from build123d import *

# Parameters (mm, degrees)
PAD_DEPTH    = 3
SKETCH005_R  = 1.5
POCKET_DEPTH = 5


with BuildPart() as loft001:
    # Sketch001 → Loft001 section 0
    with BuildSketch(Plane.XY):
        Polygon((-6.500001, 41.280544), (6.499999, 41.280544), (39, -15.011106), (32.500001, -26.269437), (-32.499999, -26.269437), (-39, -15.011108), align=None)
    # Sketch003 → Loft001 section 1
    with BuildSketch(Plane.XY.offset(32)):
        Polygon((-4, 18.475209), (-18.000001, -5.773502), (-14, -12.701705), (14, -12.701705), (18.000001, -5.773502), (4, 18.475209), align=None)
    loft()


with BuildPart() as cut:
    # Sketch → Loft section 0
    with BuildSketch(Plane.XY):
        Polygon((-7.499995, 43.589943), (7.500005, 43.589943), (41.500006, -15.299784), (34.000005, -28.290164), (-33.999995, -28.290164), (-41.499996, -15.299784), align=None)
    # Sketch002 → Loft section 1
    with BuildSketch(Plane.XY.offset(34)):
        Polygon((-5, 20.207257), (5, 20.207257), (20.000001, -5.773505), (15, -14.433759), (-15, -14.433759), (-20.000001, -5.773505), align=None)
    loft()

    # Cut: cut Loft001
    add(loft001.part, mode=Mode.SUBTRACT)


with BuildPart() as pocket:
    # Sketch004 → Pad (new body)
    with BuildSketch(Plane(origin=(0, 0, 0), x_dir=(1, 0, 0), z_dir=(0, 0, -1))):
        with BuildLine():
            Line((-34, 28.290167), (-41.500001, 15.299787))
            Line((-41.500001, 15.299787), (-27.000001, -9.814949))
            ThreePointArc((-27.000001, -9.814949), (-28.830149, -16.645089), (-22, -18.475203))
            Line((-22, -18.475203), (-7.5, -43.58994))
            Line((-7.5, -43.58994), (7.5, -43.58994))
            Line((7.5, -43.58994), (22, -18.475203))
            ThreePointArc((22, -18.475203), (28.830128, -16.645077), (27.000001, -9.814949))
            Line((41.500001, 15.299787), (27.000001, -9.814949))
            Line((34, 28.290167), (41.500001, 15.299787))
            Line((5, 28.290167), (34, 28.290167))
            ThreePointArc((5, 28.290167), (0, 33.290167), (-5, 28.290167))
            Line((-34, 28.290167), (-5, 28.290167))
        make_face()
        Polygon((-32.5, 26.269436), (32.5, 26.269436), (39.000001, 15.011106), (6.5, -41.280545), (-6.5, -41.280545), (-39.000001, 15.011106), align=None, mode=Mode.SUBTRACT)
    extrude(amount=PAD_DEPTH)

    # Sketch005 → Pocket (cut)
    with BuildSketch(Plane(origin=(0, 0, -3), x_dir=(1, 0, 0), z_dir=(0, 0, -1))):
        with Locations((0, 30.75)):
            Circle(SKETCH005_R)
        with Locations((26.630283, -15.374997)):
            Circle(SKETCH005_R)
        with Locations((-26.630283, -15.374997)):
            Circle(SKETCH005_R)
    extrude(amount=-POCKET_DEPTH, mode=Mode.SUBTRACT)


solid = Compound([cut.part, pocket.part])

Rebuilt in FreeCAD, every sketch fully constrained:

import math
import FreeCAD as App
import Part
import Sketcher
Q = App.Units.Quantity


def add_polygon(sketch, points):
    """Adds a closed chain of lines whose ends are joined by coincident constraints."""
    first, n = sketch.GeometryCount, len(points)
    for a, b in zip(points, points[1:] + points[:1]):
        sketch.addGeometry(Part.LineSegment(App.Vector(*a, 0), App.Vector(*b, 0)), False)
    for i in range(n):
        sketch.addConstraint(Sketcher.Constraint("Coincident", first + i, 2, first + (i + 1) % n, 1))

doc = App.newDocument("Part")
body = doc.addObject("PartDesign::Body", "Body")

# Sketch on XY plane
sketch1 = body.newObject("Sketcher::SketchObject", "Sketch")
sketch1.AttachmentSupport = (doc.getObject("XY_Plane"), [""])
sketch1.MapMode = "FlatFace"
add_polygon(sketch1, [(6, 41), (-7, 41), (-39, -15), (-32, -26), (33, -26), (39, -15)])  # lines 0-5
sketch1.addConstraint([
    Sketcher.Constraint("Horizontal", 0),
    Sketcher.Constraint("Horizontal", 3),
    Sketcher.Constraint("Symmetric", 1, 2, 4, 2, -2),
    Sketcher.Constraint("Parallel", 1, 4),
    Sketcher.Constraint("Parallel", 2, 5),
    Sketcher.Constraint("Equal", 2, 4),
    Sketcher.Constraint("DistanceX", 0, 2, 0, 1, Q("13 mm")),
    Sketcher.Constraint("DistanceX", 3, 1, 3, 2, Q("65 mm")),
    Sketcher.Constraint("Angle", 1, Q("-119.999999 deg")),
    Sketcher.Constraint("Distance", 1, Q("65 mm")),
    Sketcher.Constraint("DistanceY", -1, 1, 0, 2, Q("41.280544 mm")),
])

# Sketch on XY plane
sketch2 = body.newObject("Sketcher::SketchObject", "Sketch001")
sketch2.AttachmentSupport = (doc.getObject("XY_Plane"), [""])
sketch2.MapMode = "FlatFace"
sketch2.AttachmentOffset = App.Placement(App.Vector(0, 0, 32), App.Rotation())
add_polygon(sketch2, [(-4, 18), (-18, -6), (-14, -13), (14, -13), (18, -6), (4, 18)])  # lines 0-5
sketch2.addConstraint([
    Sketcher.Constraint("Horizontal", 2),
    Sketcher.Constraint("Horizontal", 5),
    Sketcher.Constraint("Symmetric", 0, 2, 3, 2, -2),
    Sketcher.Constraint("Parallel", 0, 3),
    Sketcher.Constraint("Parallel", 1, 4),
    Sketcher.Constraint("Equal", 1, 3),
    Sketcher.Constraint("DistanceX", 2, 1, 2, 2, Q("28 mm")),
    Sketcher.Constraint("DistanceX", 5, 2, 5, 1, Q("8 mm")),
    Sketcher.Constraint("Angle", 0, Q("-120.000002 deg")),
    Sketcher.Constraint("Distance", 0, Q("28 mm")),
    Sketcher.Constraint("DistanceY", 0, 2, -1, 1, Q("5.773502 mm")),
])

additiveloft = body.newObject("PartDesign::AdditiveLoft", "AdditiveLoft")
additiveloft.Profile = sketch1
additiveloft.Sections = [sketch2]
body2 = doc.addObject("PartDesign::Body", "Body001")

# Sketch on XY plane
sketch3 = body2.newObject("Sketcher::SketchObject", "Sketch002")
sketch3.AttachmentSupport = (doc.getObject("XY_Plane001"), [""])
sketch3.MapMode = "FlatFace"
add_polygon(sketch3, [(8, 44), (-7, 44), (-41, -15), (-34, -28), (34, -28), (42, -15)])  # lines 0-5
sketch3.addConstraint([
    Sketcher.Constraint("Horizontal", 0),
    Sketcher.Constraint("Horizontal", 3),
    Sketcher.Constraint("Symmetric", 1, 2, 4, 2, -2),
    Sketcher.Constraint("Parallel", 1, 4),
    Sketcher.Constraint("Parallel", 2, 5),
    Sketcher.Constraint("Equal", 2, 4),
    Sketcher.Constraint("DistanceX", 0, 2, 0, 1, Q("15 mm")),
    Sketcher.Constraint("DistanceX", 3, 1, 3, 2, Q("68 mm")),
    Sketcher.Constraint("Angle", 1, Q("-120.000001 deg")),
    Sketcher.Constraint("Distance", 1, Q("68 mm")),
    Sketcher.Constraint("DistanceY", -1, 1, 0, 2, Q("43.589943 mm")),
])

# Sketch on XY plane
sketch4 = body2.newObject("Sketcher::SketchObject", "Sketch003")
sketch4.AttachmentSupport = (doc.getObject("XY_Plane001"), [""])
sketch4.MapMode = "FlatFace"
sketch4.AttachmentOffset = App.Placement(App.Vector(0, 0, 34), App.Rotation())
add_polygon(sketch4, [(5, 20), (-5, 20), (-20, -6), (-15, -14), (15, -14), (20, -6)])  # lines 0-5
sketch4.addConstraint([
    Sketcher.Constraint("Horizontal", 0),
    Sketcher.Constraint("Horizontal", 3),
    Sketcher.Constraint("Symmetric", 1, 2, 4, 2, -2),
    Sketcher.Constraint("Parallel", 1, 4),
    Sketcher.Constraint("Parallel", 2, 5),
    Sketcher.Constraint("Equal", 2, 4),
    Sketcher.Constraint("DistanceX", 0, 2, 0, 1, Q("10 mm")),
    Sketcher.Constraint("DistanceX", 3, 1, 3, 2, Q("30 mm")),
    Sketcher.Constraint("Angle", 1, Q("-120.000002 deg")),
    Sketcher.Constraint("Distance", 1, Q("30 mm")),
    Sketcher.Constraint("DistanceY", 2, 2, -1, 1, Q("14.433759 mm")),
])

additiveloft2 = body2.newObject("PartDesign::AdditiveLoft", "AdditiveLoft001")
additiveloft2.Profile = sketch3
additiveloft2.Sections = [sketch4]
doc.recompute()

boolean = body2.newObject("PartDesign::Boolean", "Boolean")
boolean.Type = "Cut"
boolean.addObjects([body])
body3 = doc.addObject("PartDesign::Body", "Body002")

# Sketch on XY plane
sketch5 = body3.newObject("Sketcher::SketchObject", "Sketch004")
sketch5.AttachmentSupport = (doc.getObject("XY_Plane002"), [""])
sketch5.MapMode = "FlatFace"
sketch5.addGeometry(Part.LineSegment(App.Vector(-34, -28, 0), App.Vector(-42, -15, 0)), False)  # 0
sketch5.addGeometry(Part.LineSegment(App.Vector(-42, -15, 0), App.Vector(-27, 10, 0)), False)  # 1
sketch5.addGeometry(Part.ArcOfCircle(Part.Circle(App.Vector(-25, 14, 0), App.Vector(0, 0, 1), 5), math.radians(60), math.radians(240)), False)  # 2
sketch5.addGeometry(Part.LineSegment(App.Vector(-22, 18, 0), App.Vector(-8, 44, 0)), False)  # 3
sketch5.addGeometry(Part.LineSegment(App.Vector(-8, 44, 0), App.Vector(8, 44, 0)), False)  # 4
sketch5.addGeometry(Part.LineSegment(App.Vector(8, 44, 0), App.Vector(22, 18, 0)), False)  # 5
sketch5.addGeometry(Part.ArcOfCircle(Part.Circle(App.Vector(25, 14, 0), App.Vector(0, 0, 1), 5), math.radians(-60), math.radians(120)), False)  # 6
sketch5.addGeometry(Part.LineSegment(App.Vector(27, 10, 0), App.Vector(42, -15, 0)), False)  # 7
sketch5.addGeometry(Part.LineSegment(App.Vector(42, -15, 0), App.Vector(34, -28, 0)), False)  # 8
sketch5.addGeometry(Part.LineSegment(App.Vector(34, -28, 0), App.Vector(5, -28, 0)), False)  # 9
sketch5.addGeometry(Part.ArcOfCircle(Part.Circle(App.Vector(0, -28, 0), App.Vector(0, 0, 1), 5), math.radians(180), math.radians(360)), False)  # 10
sketch5.addGeometry(Part.LineSegment(App.Vector(-5, -28, 0), App.Vector(-34, -28, 0)), False)  # 11
add_polygon(sketch5, [(-39, -15), (-32, -26), (32, -26), (39, -15), (6, 41), (-6, 41)])  # lines 12-17
sketch5.addConstraint([
    Sketcher.Constraint("Coincident", 0, 2, 1, 1),
    Sketcher.Constraint("Coincident", 1, 2, 2, 2),
    Sketcher.Constraint("Coincident", 2, 1, 3, 1),
    Sketcher.Constraint("Coincident", 3, 2, 4, 1),
    Sketcher.Constraint("Coincident", 4, 2, 5, 1),
    Sketcher.Constraint("Coincident", 5, 2, 6, 2),
    Sketcher.Constraint("Coincident", 6, 1, 7, 1),
    Sketcher.Constraint("Coincident", 7, 2, 8, 1),
    Sketcher.Constraint("Coincident", 8, 2, 9, 1),
    Sketcher.Constraint("Coincident", 9, 2, 10, 2),
    Sketcher.Constraint("Coincident", 10, 1, 11, 1),
    Sketcher.Constraint("Coincident", 11, 2, 0, 1),
    Sketcher.Constraint("Horizontal", 4),
    Sketcher.Constraint("Horizontal", 9),
    Sketcher.Constraint("Horizontal", 11),
    Sketcher.Constraint("Horizontal", 13),
    Sketcher.Constraint("Horizontal", 16),
    Sketcher.Constraint("Equal", 2, 6),
    Sketcher.Constraint("Equal", 6, 10),
    Sketcher.Constraint("Symmetric", 2, 1, 5, 2, -2),
    Sketcher.Constraint("Symmetric", 0, 2, 7, 2, -2),
    Sketcher.Constraint("Symmetric", 9, 2, 10, 1, -2),
    Sketcher.Constraint("Symmetric", 14, 2, 17, 2, -2),
    Sketcher.Constraint("Parallel", 1, 3),
    Sketcher.Constraint("Parallel", 0, 5),
    Sketcher.Constraint("Parallel", 5, 7),
    Sketcher.Constraint("Parallel", 3, 8),
    Sketcher.Constraint("Parallel", 7, 12),
    Sketcher.Constraint("Parallel", 8, 14),
    Sketcher.Constraint("Parallel", 12, 15),
    Sketcher.Constraint("Parallel", 14, 17),
    Sketcher.Constraint("Horizontal", 1, 2, 6, 1),
    Sketcher.Constraint("Horizontal", 10, 3, 8, 2),
    Sketcher.Constraint("Equal", 1, 3),
    Sketcher.Constraint("Radius", 2, Q("5 mm")),
    Sketcher.Constraint("DistanceX", 4, 1, 4, 2, Q("15 mm")),
    Sketcher.Constraint("DistanceX", 9, 2, 9, 1, Q("29 mm")),
    Sketcher.Constraint("DistanceX", 13, 1, 13, 2, Q("65 mm")),
    Sketcher.Constraint("DistanceX", 16, 2, 16, 1, Q("13 mm")),
    Sketcher.Constraint("Angle", 0, Q("120.000005 deg")),
    Sketcher.Constraint("Distance", 0, Q("15 mm")),
    Sketcher.Constraint("Distance", 1, Q("28.999999 mm")),
    Sketcher.Constraint("Distance", 12, Q("13 mm")),
    Sketcher.Constraint("DistanceX", 3, 2, 6, 3, Q("32.000001 mm")),
    Sketcher.Constraint("DistanceY", -1, 1, 2, 3, Q("14.145088 mm")),
    Sketcher.Constraint("DistanceY", -1, 1, 1, 2, Q("9.814949 mm")),
    Sketcher.Constraint("DistanceY", 11, 2, 12, 2, Q("2.020731 mm")),
])
pad1 = body3.newObject("PartDesign::Pad", "Pad")
pad1.Profile = sketch5
pad1.Length = 3
pad1.Reversed = True

# Sketch on XY plane
sketch6 = body3.newObject("Sketcher::SketchObject", "Sketch005")
sketch6.AttachmentSupport = (doc.getObject("XY_Plane002"), [""])
sketch6.MapMode = "FlatFace"
sketch6.AttachmentOffset = App.Placement(App.Vector(0, 0, -3), App.Rotation())
sketch6.addGeometry([
    Part.Circle(App.Vector(0, -30.8, 0), App.Vector(0, 0, 1), 1.5),
    Part.Circle(App.Vector(26.6, 15.4, 0), App.Vector(0, 0, 1), 1.5),
    Part.Circle(App.Vector(-26.6, 15.4, 0), App.Vector(0, 0, 1), 1.5),
], False)
sketch6.addConstraint([
    Sketcher.Constraint("Equal", 0, 1),
    Sketcher.Constraint("Equal", 1, 2),
    Sketcher.Constraint("Symmetric", 1, 3, 2, 3, -2),
    Sketcher.Constraint("PointOnObject", 0, 3, -2),
    Sketcher.Constraint("Diameter", 0, Q("3 mm")),
    Sketcher.Constraint("DistanceY", 0, 3, -1, 1, Q("30.75 mm")),
    Sketcher.Constraint("DistanceX", -1, 1, 1, 3, Q("26.630283 mm")),
    Sketcher.Constraint("DistanceY", -1, 1, 1, 3, Q("15.374997 mm")),
])
pocket1 = body3.newObject("PartDesign::Pocket", "Pocket")
pocket1.Profile = sketch6
pocket1.Length = 5
pocket1.Reversed = True

doc.recompute()
